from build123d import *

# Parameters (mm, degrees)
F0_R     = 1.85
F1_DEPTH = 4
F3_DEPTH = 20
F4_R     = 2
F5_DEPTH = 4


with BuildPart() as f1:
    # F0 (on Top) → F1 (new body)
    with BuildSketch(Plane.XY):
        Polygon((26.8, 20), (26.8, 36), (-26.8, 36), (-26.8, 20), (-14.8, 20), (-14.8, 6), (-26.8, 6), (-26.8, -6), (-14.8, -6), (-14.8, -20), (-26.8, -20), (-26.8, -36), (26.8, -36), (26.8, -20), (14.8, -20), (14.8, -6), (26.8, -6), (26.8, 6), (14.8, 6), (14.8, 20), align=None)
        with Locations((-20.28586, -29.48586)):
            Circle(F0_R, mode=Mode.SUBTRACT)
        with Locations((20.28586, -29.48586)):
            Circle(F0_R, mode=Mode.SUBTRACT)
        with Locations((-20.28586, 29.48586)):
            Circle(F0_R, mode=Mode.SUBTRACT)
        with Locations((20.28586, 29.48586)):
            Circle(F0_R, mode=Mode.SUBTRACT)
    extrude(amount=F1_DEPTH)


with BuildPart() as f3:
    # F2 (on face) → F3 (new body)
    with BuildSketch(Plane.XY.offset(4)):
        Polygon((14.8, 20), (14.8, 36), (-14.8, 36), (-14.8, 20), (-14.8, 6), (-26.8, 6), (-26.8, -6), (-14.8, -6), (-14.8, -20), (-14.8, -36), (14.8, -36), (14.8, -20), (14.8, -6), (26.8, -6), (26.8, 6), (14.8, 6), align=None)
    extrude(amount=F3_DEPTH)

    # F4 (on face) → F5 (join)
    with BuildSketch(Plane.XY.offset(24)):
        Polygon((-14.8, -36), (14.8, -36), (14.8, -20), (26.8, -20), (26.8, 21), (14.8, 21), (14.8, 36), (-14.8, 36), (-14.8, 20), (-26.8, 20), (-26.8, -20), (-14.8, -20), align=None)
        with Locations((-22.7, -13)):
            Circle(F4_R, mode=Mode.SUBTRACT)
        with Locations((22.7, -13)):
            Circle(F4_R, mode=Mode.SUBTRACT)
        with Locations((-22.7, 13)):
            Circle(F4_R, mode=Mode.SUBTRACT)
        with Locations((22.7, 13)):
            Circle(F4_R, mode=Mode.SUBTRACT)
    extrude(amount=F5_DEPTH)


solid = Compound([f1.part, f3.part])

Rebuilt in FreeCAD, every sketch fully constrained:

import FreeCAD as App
import Part
import Sketcher
from FreeCAD import Vector
Q = App.Units.Quantity

doc = App.newDocument("Part")
body = doc.addObject("PartDesign::Body", "Body")

sketch1 = body.newObject("Sketcher::SketchObject", "Sketch")
sketch1.AttachmentSupport = (doc.getObject("XY_Plane"), [""])
sketch1.MapMode = "FlatFace"
sketch1.addGeometry(Part.LineSegment(Vector(26.8, 20, 0), Vector(26.8, 36, 0)), False)
sketch1.addGeometry(Part.LineSegment(Vector(26.8, 36, 0), Vector(-26.8, 36, 0)), False)
sketch1.addGeometry(Part.LineSegment(Vector(-26.8, 36, 0), Vector(-26.8, 20, 0)), False)
sketch1.addGeometry(Part.LineSegment(Vector(-26.8, 20, 0), Vector(-14.8, 20, 0)), False)
sketch1.addGeometry(Part.LineSegment(Vector(-14.8, 20, 0), Vector(-14.8, 6, 0)), False)
sketch1.addGeometry(Part.LineSegment(Vector(-14.8, 6, 0), Vector(-26.8, 6, 0)), False)
sketch1.addGeometry(Part.LineSegment(Vector(-26.8, 6, 0), Vector(-26.8, -6, 0)), False)
sketch1.addGeometry(Part.LineSegment(Vector(-26.8, -6, 0), Vector(-14.8, -6, 0)), False)
sketch1.addGeometry(Part.LineSegment(Vector(-14.8, -6, 0), Vector(-14.8, -20, 0)), False)
sketch1.addGeometry(Part.LineSegment(Vector(-14.8, -20, 0), Vector(-26.8, -20, 0)), False)
sketch1.addGeometry(Part.LineSegment(Vector(-26.8, -20, 0), Vector(-26.8, -36, 0)), False)
sketch1.addGeometry(Part.LineSegment(Vector(-26.8, -36, 0), Vector(26.8, -36, 0)), False)
sketch1.addGeometry(Part.LineSegment(Vector(26.8, -36, 0), Vector(26.8, -20, 0)), False)
sketch1.addGeometry(Part.LineSegment(Vector(26.8, -20, 0), Vector(14.8, -20, 0)), False)
sketch1.addGeometry(Part.LineSegment(Vector(14.8, -20, 0), Vector(14.8, -6, 0)), False)
sketch1.addGeometry(Part.LineSegment(Vector(14.8, -6, 0), Vector(26.8, -6, 0)), False)
sketch1.addGeometry(Part.LineSegment(Vector(26.8, -6, 0), Vector(26.8, 6, 0)), False)
sketch1.addGeometry(Part.LineSegment(Vector(26.8, 6, 0), Vector(14.8, 6, 0)), False)
sketch1.addGeometry(Part.LineSegment(Vector(14.8, 6, 0), Vector(14.8, 20, 0)), False)
sketch1.addGeometry(Part.LineSegment(Vector(14.8, 20, 0), Vector(26.8, 20, 0)), False)
sketch1.addGeometry(Part.Circle(Vector(-20.3, -29.5, 0), Vector(0, 0, 1), 1.9), False)
sketch1.addGeometry(Part.Circle(Vector(20.3, -29.5, 0), Vector(0, 0, 1), 1.9), False)
sketch1.addGeometry(Part.Circle(Vector(-20.3, 29.5, 0), Vector(0, 0, 1), 1.9), False)
sketch1.addGeometry(Part.Circle(Vector(20.3, 29.5, 0), Vector(0, 0, 1), 1.9), False)
sketch1.addConstraint(Sketcher.Constraint("Coincident", 0, 2, 1, 1))
sketch1.addConstraint(Sketcher.Constraint("Coincident", 1, 2, 2, 1))
sketch1.addConstraint(Sketcher.Constraint("Coincident", 2, 2, 3, 1))
sketch1.addConstraint(Sketcher.Constraint("Coincident", 3, 2, 4, 1))
sketch1.addConstraint(Sketcher.Constraint("Coincident", 4, 2, 5, 1))
sketch1.addConstraint(Sketcher.Constraint("Coincident", 5, 2, 6, 1))
sketch1.addConstraint(Sketcher.Constraint("Coincident", 6, 2, 7, 1))
sketch1.addConstraint(Sketcher.Constraint("Coincident", 7, 2, 8, 1))
sketch1.addConstraint(Sketcher.Constraint("Coincident", 8, 2, 9, 1))
sketch1.addConstraint(Sketcher.Constraint("Coincident", 9, 2, 10, 1))
sketch1.addConstraint(Sketcher.Constraint("Coincident", 10, 2, 11, 1))
sketch1.addConstraint(Sketcher.Constraint("Coincident", 11, 2, 12, 1))
sketch1.addConstraint(Sketcher.Constraint("Coincident", 12, 2, 13, 1))
sketch1.addConstraint(Sketcher.Constraint("Coincident", 13, 2, 14, 1))
sketch1.addConstraint(Sketcher.Constraint("Coincident", 14, 2, 15, 1))
sketch1.addConstraint(Sketcher.Constraint("Coincident", 15, 2, 16, 1))
sketch1.addConstraint(Sketcher.Constraint("Coincident", 16, 2, 17, 1))
sketch1.addConstraint(Sketcher.Constraint("Coincident", 17, 2, 18, 1))
sketch1.addConstraint(Sketcher.Constraint("Coincident", 18, 2, 19, 1))
sketch1.addConstraint(Sketcher.Constraint("Coincident", 19, 2, 0, 1))
sketch1.addConstraint(Sketcher.Constraint("Vertical", 0))
sketch1.addConstraint(Sketcher.Constraint("Horizontal", 1))
sketch1.addConstraint(Sketcher.Constraint("Vertical", 2))
sketch1.addConstraint(Sketcher.Constraint("Horizontal", 3))
sketch1.addConstraint(Sketcher.Constraint("Vertical", 4))
sketch1.addConstraint(Sketcher.Constraint("Horizontal", 5))
sketch1.addConstraint(Sketcher.Constraint("Vertical", 6))
sketch1.addConstraint(Sketcher.Constraint("Horizontal", 7))
sketch1.addConstraint(Sketcher.Constraint("Vertical", 8))
sketch1.addConstraint(Sketcher.Constraint("Horizontal", 9))
sketch1.addConstraint(Sketcher.Constraint("Vertical", 10))
sketch1.addConstraint(Sketcher.Constraint("Horizontal", 11))
sketch1.addConstraint(Sketcher.Constraint("Vertical", 12))
sketch1.addConstraint(Sketcher.Constraint("Horizontal", 13))
sketch1.addConstraint(Sketcher.Constraint("Vertical", 14))
sketch1.addConstraint(Sketcher.Constraint("Horizontal", 15))
sketch1.addConstraint(Sketcher.Constraint("Vertical", 16))
sketch1.addConstraint(Sketcher.Constraint("Horizontal", 17))
sketch1.addConstraint(Sketcher.Constraint("Vertical", 18))
sketch1.addConstraint(Sketcher.Constraint("Horizontal", 19))
sketch1.addConstraint(Sketcher.Constraint("Equal", 20, 21))
sketch1.addConstraint(Sketcher.Constraint("Equal", 21, 22))
sketch1.addConstraint(Sketcher.Constraint("Equal", 22, 23))
sketch1.addConstraint(Sketcher.Constraint("Symmetric", 21, 3, 22, 3, -1, 1))
sketch1.addConstraint(Sketcher.Constraint("Symmetric", 20, 3, 23, 3, -1, 1))
sketch1.addConstraint(Sketcher.Constraint("Symmetric", 0, 2, 10, 2, -1, 1))
sketch1.addConstraint(Sketcher.Constraint("Symmetric", 2, 2, 12, 2, -1, 1))
sketch1.addConstraint(Sketcher.Constraint("Symmetric", 4, 2, 14, 2, -1, 1))
sketch1.addConstraint(Sketcher.Constraint("Symmetric", 6, 2, 16, 2, -1, 1))
sketch1.addConstraint(Sketcher.Constraint("Symmetric", 8, 2, 18, 2, -1, 1))
sketch1.addConstraint(Sketcher.Constraint("Symmetric", 20, 3, 21, 3, -2))
sketch1.addConstraint(Sketcher.Constraint("Symmetric", 9, 2, 12, 2, -2))
sketch1.addConstraint(Sketcher.Constraint("Symmetric", 7, 2, 14, 2, -2))
sketch1.addConstraint(Sketcher.Constraint("Vertical", 2, 2, 5, 2))
sketch1.addConstraint(Sketcher.Constraint("Equal", 19, 6))
sketch1.addConstraint(Sketcher.Constraint("Diameter", 20, Q("3.7 mm")))
sketch1.addConstraint(Sketcher.Constraint("DistanceX", 3, 1, 3, 2, Q("12 mm")))
sketch1.addConstraint(Sketcher.Constraint("DistanceY", 0, 1, 0, 2, Q("16 mm")))
sketch1.addConstraint(Sketcher.Constraint("DistanceY", 4, 2, 4, 1, Q("14 mm")))
sketch1.addConstraint(Sketcher.Constraint("DistanceX", 1, 2, 1, 1, Q("53.6 mm")))
sketch1.addConstraint(Sketcher.Constraint("DistanceX", 20, 3, -1, 1, Q("20.28586 mm")))
sketch1.addConstraint(Sketcher.Constraint("DistanceY", 20, 3, -1, 1, Q("29.48586 mm")))
pad1 = body.newObject("PartDesign::Pad", "Pad")
pad1.Profile = sketch1
pad1.Length = 4
body2 = doc.addObject("PartDesign::Body", "Body001")

sketch2 = body2.newObject("Sketcher::SketchObject", "Sketch001")
sketch2.AttachmentSupport = (doc.getObject("XY_Plane001"), [""])
sketch2.MapMode = "FlatFace"
sketch2.AttachmentOffset = App.Placement(Vector(0, 0, 4), App.Rotation())
sketch2.addGeometry(Part.LineSegment(Vector(15, 36, 0), Vector(-15, 36, 0)), False)
sketch2.addGeometry(Part.LineSegment(Vector(-15, 36, 0), Vector(-15, 6, 0)), False)
sketch2.addGeometry(Part.LineSegment(Vector(-15, 6, 0), Vector(-27, 6, 0)), False)
sketch2.addGeometry(Part.LineSegment(Vector(-27, 6, 0), Vector(-27, -6, 0)), False)
sketch2.addGeometry(Part.LineSegment(Vector(-27, -6, 0), Vector(-15, -6, 0)), False)
sketch2.addGeometry(Part.LineSegment(Vector(-15, -6, 0), Vector(-15, -36, 0)), False)
sketch2.addGeometry(Part.LineSegment(Vector(-15, -36, 0), Vector(15, -36, 0)), False)
sketch2.addGeometry(Part.LineSegment(Vector(15, -36, 0), Vector(15, -6, 0)), False)
sketch2.addGeometry(Part.LineSegment(Vector(15, -6, 0), Vector(27, -6, 0)), False)
sketch2.addGeometry(Part.LineSegment(Vector(27, -6, 0), Vector(27, 6, 0)), False)
sketch2.addGeometry(Part.LineSegment(Vector(27, 6, 0), Vector(15, 6, 0)), False)
sketch2.addGeometry(Part.LineSegment(Vector(15, 6, 0), Vector(15, 36, 0)), False)
sketch2.addConstraint(Sketcher.Constraint("Coincident", 0, 2, 1, 1))
sketch2.addConstraint(Sketcher.Constraint("Coincident", 1, 2, 2, 1))
sketch2.addConstraint(Sketcher.Constraint("Coincident", 2, 2, 3, 1))
sketch2.addConstraint(Sketcher.Constraint("Coincident", 3, 2, 4, 1))
sketch2.addConstraint(Sketcher.Constraint("Coincident", 4, 2, 5, 1))
sketch2.addConstraint(Sketcher.Constraint("Coincident", 5, 2, 6, 1))
sketch2.addConstraint(Sketcher.Constraint("Coincident", 6, 2, 7, 1))
sketch2.addConstraint(Sketcher.Constraint("Coincident", 7, 2, 8, 1))
sketch2.addConstraint(Sketcher.Constraint("Coincident", 8, 2, 9, 1))
sketch2.addConstraint(Sketcher.Constraint("Coincident", 9, 2, 10, 1))
sketch2.addConstraint(Sketcher.Constraint("Coincident", 10, 2, 11, 1))
sketch2.addConstraint(Sketcher.Constraint("Coincident", 11, 2, 0, 1))
sketch2.addConstraint(Sketcher.Constraint("Horizontal", 0))
sketch2.addConstraint(Sketcher.Constraint("Vertical", 1))
sketch2.addConstraint(Sketcher.Constraint("Horizontal", 2))
sketch2.addConstraint(Sketcher.Constraint("Vertical", 3))
sketch2.addConstraint(Sketcher.Constraint("Horizontal", 4))
sketch2.addConstraint(Sketcher.Constraint("Vertical", 5))
sketch2.addConstraint(Sketcher.Constraint("Horizontal", 6))
sketch2.addConstraint(Sketcher.Constraint("Vertical", 7))
sketch2.addConstraint(Sketcher.Constraint("Horizontal", 8))
sketch2.addConstraint(Sketcher.Constraint("Vertical", 9))
sketch2.addConstraint(Sketcher.Constraint("Horizontal", 10))
sketch2.addConstraint(Sketcher.Constraint("Vertical", 11))
sketch2.addConstraint(Sketcher.Constraint("Symmetric", 0, 2, 6, 2, -1, 1))
sketch2.addConstraint(Sketcher.Constraint("Symmetric", 2, 2, 8, 2, -1, 1))
sketch2.addConstraint(Sketcher.Constraint("Symmetric", 4, 2, 10, 2, -1, 1))
sketch2.addConstraint(Sketcher.Constraint("Symmetric", 4, 2, 7, 2, -2))
sketch2.addConstraint(Sketcher.Constraint("Equal", 10, 3))
sketch2.addConstraint(Sketcher.Constraint("DistanceX", 2, 2, 2, 1, Q("12 mm")))
sketch2.addConstraint(Sketcher.Constraint("DistanceY", 1, 2, 1, 1, Q("30 mm")))
sketch2.addConstraint(Sketcher.Constraint("DistanceX", 0, 2, 0, 1, Q("29.6 mm")))
pad2 = body2.newObject("PartDesign::Pad", "Pad001")
pad2.Profile = sketch2
pad2.Length = 20

sketch3 = body2.newObject("Sketcher::SketchObject", "Sketch002")
sketch3.AttachmentSupport = (doc.getObject("XY_Plane001"), [""])
sketch3.MapMode = "FlatFace"
sketch3.AttachmentOffset = App.Placement(Vector(0, 0, 24), App.Rotation())
sketch3.addGeometry(Part.LineSegment(Vector(-14.8, -36, 0), Vector(14.8, -36, 0)), False)
sketch3.addGeometry(Part.LineSegment(Vector(14.8, -36, 0), Vector(14.8, -20, 0)), False)
sketch3.addGeometry(Part.LineSegment(Vector(14.8, -20, 0), Vector(26.8, -20, 0)), False)
sketch3.addGeometry(Part.LineSegment(Vector(26.8, -20, 0), Vector(26.8, 21, 0)), False)
sketch3.addGeometry(Part.LineSegment(Vector(26.8, 21, 0), Vector(14.8, 21, 0)), False)
sketch3.addGeometry(Part.LineSegment(Vector(14.8, 21, 0), Vector(14.8, 36, 0)), False)
sketch3.addGeometry(Part.LineSegment(Vector(14.8, 36, 0), Vector(-14.8, 36, 0)), False)
sketch3.addGeometry(Part.LineSegment(Vector(-14.8, 36, 0), Vector(-14.8, 20, 0)), False)
sketch3.addGeometry(Part.LineSegment(Vector(-14.8, 20, 0), Vector(-26.8, 20, 0)), False)
sketch3.addGeometry(Part.LineSegment(Vector(-26.8, 20, 0), Vector(-26.8, -20, 0)), False)
sketch3.addGeometry(Part.LineSegment(Vector(-26.8, -20, 0), Vector(-14.8, -20, 0)), False)
sketch3.addGeometry(Part.LineSegment(Vector(-14.8, -20, 0), Vector(-14.8, -36, 0)), False)
sketch3.addGeometry(Part.Circle(Vector(-22.7, -13, 0), Vector(0, 0, 1), 2), False)
sketch3.addGeometry(Part.Circle(Vector(22.7, -13, 0), Vector(0, 0, 1), 2), False)
sketch3.addGeometry(Part.Circle(Vector(-22.7, 13, 0), Vector(0, 0, 1), 2), False)
sketch3.addGeometry(Part.Circle(Vector(22.7, 13, 0), Vector(0, 0, 1), 2), False)
sketch3.addConstraint(Sketcher.Constraint("Coincident", 0, 2, 1, 1))
sketch3.addConstraint(Sketcher.Constraint("Coincident", 1, 2, 2, 1))
sketch3.addConstraint(Sketcher.Constraint("Coincident", 2, 2, 3, 1))
sketch3.addConstraint(Sketcher.Constraint("Coincident", 3, 2, 4, 1))
sketch3.addConstraint(Sketcher.Constraint("Coincident", 4, 2, 5, 1))
sketch3.addConstraint(Sketcher.Constraint("Coincident", 5, 2, 6, 1))
sketch3.addConstraint(Sketcher.Constraint("Coincident", 6, 2, 7, 1))
sketch3.addConstraint(Sketcher.Constraint("Coincident", 7, 2, 8, 1))
sketch3.addConstraint(Sketcher.Constraint("Coincident", 8, 2, 9, 1))
sketch3.addConstraint(Sketcher.Constraint("Coincident", 9, 2, 10, 1))
sketch3.addConstraint(Sketcher.Constraint("Coincident", 10, 2, 11, 1))
sketch3.addConstraint(Sketcher.Constraint("Coincident", 11, 2, 0, 1))
sketch3.addConstraint(Sketcher.Constraint("Horizontal", 0))
sketch3.addConstraint(Sketcher.Constraint("Vertical", 1))
sketch3.addConstraint(Sketcher.Constraint("Horizontal", 2))
sketch3.addConstraint(Sketcher.Constraint("Vertical", 3))
sketch3.addConstraint(Sketcher.Constraint("Horizontal", 4))
sketch3.addConstraint(Sketcher.Constraint("Vertical", 5))
sketch3.addConstraint(Sketcher.Constraint("Horizontal", 6))
sketch3.addConstraint(Sketcher.Constraint("Vertical", 7))
sketch3.addConstraint(Sketcher.Constraint("Horizontal", 8))
sketch3.addConstraint(Sketcher.Constraint("Vertical", 9))
sketch3.addConstraint(Sketcher.Constraint("Horizontal", 10))
sketch3.addConstraint(Sketcher.Constraint("Vertical", 11))
sketch3.addConstraint(Sketcher.Constraint("Equal", 12, 13))
sketch3.addConstraint(Sketcher.Constraint("Equal", 13, 14))
sketch3.addConstraint(Sketcher.Constraint("Equal", 14, 15))
sketch3.addConstraint(Sketcher.Constraint("Symmetric", 13, 3, 14, 3, -1, 1))
sketch3.addConstraint(Sketcher.Constraint("Symmetric", 12, 3, 15, 3, -1, 1))
sketch3.addConstraint(Sketcher.Constraint("Symmetric", 0, 2, 6, 2, -1, 1))
sketch3.addConstraint(Sketcher.Constraint("Symmetric", 2, 2, 8, 2, -1, 1))
sketch3.addConstraint(Sketcher.Constraint("Symmetric", 12, 3, 13, 3, -2))
sketch3.addConstraint(Sketcher.Constraint("Symmetric", 1, 2, 10, 2, -2))
sketch3.addConstraint(Sketcher.Constraint("Vertical", 1, 2, 4, 2))
sketch3.addConstraint(Sketcher.Constraint("Diameter", 12, Q("4 mm")))
sketch3.addConstraint(Sketcher.Constraint("DistanceX", 2, 1, 2, 2, Q("12 mm")))
sketch3.addConstraint(Sketcher.Constraint("DistanceY", 1, 1, 1, 2, Q("16 mm")))
sketch3.addConstraint(Sketcher.Constraint("DistanceY", 3, 1, 3, 2, Q("41 mm")))
sketch3.addConstraint(Sketcher.Constraint("DistanceY", 5, 1, 5, 2, Q("15 mm")))
sketch3.addConstraint(Sketcher.Constraint("DistanceX", 0, 1, 0, 2, Q("29.6 mm")))
sketch3.addConstraint(Sketcher.Constraint("DistanceY", 12, 3, -1, 1, Q("13 mm")))
sketch3.addConstraint(Sketcher.Constraint("DistanceX", 12, 3, -1, 1, Q("22.7 mm")))
pad3 = body2.newObject("PartDesign::Pad", "Pad002")
pad3.Profile = sketch3
pad3.Length = 4

doc.recompute()
